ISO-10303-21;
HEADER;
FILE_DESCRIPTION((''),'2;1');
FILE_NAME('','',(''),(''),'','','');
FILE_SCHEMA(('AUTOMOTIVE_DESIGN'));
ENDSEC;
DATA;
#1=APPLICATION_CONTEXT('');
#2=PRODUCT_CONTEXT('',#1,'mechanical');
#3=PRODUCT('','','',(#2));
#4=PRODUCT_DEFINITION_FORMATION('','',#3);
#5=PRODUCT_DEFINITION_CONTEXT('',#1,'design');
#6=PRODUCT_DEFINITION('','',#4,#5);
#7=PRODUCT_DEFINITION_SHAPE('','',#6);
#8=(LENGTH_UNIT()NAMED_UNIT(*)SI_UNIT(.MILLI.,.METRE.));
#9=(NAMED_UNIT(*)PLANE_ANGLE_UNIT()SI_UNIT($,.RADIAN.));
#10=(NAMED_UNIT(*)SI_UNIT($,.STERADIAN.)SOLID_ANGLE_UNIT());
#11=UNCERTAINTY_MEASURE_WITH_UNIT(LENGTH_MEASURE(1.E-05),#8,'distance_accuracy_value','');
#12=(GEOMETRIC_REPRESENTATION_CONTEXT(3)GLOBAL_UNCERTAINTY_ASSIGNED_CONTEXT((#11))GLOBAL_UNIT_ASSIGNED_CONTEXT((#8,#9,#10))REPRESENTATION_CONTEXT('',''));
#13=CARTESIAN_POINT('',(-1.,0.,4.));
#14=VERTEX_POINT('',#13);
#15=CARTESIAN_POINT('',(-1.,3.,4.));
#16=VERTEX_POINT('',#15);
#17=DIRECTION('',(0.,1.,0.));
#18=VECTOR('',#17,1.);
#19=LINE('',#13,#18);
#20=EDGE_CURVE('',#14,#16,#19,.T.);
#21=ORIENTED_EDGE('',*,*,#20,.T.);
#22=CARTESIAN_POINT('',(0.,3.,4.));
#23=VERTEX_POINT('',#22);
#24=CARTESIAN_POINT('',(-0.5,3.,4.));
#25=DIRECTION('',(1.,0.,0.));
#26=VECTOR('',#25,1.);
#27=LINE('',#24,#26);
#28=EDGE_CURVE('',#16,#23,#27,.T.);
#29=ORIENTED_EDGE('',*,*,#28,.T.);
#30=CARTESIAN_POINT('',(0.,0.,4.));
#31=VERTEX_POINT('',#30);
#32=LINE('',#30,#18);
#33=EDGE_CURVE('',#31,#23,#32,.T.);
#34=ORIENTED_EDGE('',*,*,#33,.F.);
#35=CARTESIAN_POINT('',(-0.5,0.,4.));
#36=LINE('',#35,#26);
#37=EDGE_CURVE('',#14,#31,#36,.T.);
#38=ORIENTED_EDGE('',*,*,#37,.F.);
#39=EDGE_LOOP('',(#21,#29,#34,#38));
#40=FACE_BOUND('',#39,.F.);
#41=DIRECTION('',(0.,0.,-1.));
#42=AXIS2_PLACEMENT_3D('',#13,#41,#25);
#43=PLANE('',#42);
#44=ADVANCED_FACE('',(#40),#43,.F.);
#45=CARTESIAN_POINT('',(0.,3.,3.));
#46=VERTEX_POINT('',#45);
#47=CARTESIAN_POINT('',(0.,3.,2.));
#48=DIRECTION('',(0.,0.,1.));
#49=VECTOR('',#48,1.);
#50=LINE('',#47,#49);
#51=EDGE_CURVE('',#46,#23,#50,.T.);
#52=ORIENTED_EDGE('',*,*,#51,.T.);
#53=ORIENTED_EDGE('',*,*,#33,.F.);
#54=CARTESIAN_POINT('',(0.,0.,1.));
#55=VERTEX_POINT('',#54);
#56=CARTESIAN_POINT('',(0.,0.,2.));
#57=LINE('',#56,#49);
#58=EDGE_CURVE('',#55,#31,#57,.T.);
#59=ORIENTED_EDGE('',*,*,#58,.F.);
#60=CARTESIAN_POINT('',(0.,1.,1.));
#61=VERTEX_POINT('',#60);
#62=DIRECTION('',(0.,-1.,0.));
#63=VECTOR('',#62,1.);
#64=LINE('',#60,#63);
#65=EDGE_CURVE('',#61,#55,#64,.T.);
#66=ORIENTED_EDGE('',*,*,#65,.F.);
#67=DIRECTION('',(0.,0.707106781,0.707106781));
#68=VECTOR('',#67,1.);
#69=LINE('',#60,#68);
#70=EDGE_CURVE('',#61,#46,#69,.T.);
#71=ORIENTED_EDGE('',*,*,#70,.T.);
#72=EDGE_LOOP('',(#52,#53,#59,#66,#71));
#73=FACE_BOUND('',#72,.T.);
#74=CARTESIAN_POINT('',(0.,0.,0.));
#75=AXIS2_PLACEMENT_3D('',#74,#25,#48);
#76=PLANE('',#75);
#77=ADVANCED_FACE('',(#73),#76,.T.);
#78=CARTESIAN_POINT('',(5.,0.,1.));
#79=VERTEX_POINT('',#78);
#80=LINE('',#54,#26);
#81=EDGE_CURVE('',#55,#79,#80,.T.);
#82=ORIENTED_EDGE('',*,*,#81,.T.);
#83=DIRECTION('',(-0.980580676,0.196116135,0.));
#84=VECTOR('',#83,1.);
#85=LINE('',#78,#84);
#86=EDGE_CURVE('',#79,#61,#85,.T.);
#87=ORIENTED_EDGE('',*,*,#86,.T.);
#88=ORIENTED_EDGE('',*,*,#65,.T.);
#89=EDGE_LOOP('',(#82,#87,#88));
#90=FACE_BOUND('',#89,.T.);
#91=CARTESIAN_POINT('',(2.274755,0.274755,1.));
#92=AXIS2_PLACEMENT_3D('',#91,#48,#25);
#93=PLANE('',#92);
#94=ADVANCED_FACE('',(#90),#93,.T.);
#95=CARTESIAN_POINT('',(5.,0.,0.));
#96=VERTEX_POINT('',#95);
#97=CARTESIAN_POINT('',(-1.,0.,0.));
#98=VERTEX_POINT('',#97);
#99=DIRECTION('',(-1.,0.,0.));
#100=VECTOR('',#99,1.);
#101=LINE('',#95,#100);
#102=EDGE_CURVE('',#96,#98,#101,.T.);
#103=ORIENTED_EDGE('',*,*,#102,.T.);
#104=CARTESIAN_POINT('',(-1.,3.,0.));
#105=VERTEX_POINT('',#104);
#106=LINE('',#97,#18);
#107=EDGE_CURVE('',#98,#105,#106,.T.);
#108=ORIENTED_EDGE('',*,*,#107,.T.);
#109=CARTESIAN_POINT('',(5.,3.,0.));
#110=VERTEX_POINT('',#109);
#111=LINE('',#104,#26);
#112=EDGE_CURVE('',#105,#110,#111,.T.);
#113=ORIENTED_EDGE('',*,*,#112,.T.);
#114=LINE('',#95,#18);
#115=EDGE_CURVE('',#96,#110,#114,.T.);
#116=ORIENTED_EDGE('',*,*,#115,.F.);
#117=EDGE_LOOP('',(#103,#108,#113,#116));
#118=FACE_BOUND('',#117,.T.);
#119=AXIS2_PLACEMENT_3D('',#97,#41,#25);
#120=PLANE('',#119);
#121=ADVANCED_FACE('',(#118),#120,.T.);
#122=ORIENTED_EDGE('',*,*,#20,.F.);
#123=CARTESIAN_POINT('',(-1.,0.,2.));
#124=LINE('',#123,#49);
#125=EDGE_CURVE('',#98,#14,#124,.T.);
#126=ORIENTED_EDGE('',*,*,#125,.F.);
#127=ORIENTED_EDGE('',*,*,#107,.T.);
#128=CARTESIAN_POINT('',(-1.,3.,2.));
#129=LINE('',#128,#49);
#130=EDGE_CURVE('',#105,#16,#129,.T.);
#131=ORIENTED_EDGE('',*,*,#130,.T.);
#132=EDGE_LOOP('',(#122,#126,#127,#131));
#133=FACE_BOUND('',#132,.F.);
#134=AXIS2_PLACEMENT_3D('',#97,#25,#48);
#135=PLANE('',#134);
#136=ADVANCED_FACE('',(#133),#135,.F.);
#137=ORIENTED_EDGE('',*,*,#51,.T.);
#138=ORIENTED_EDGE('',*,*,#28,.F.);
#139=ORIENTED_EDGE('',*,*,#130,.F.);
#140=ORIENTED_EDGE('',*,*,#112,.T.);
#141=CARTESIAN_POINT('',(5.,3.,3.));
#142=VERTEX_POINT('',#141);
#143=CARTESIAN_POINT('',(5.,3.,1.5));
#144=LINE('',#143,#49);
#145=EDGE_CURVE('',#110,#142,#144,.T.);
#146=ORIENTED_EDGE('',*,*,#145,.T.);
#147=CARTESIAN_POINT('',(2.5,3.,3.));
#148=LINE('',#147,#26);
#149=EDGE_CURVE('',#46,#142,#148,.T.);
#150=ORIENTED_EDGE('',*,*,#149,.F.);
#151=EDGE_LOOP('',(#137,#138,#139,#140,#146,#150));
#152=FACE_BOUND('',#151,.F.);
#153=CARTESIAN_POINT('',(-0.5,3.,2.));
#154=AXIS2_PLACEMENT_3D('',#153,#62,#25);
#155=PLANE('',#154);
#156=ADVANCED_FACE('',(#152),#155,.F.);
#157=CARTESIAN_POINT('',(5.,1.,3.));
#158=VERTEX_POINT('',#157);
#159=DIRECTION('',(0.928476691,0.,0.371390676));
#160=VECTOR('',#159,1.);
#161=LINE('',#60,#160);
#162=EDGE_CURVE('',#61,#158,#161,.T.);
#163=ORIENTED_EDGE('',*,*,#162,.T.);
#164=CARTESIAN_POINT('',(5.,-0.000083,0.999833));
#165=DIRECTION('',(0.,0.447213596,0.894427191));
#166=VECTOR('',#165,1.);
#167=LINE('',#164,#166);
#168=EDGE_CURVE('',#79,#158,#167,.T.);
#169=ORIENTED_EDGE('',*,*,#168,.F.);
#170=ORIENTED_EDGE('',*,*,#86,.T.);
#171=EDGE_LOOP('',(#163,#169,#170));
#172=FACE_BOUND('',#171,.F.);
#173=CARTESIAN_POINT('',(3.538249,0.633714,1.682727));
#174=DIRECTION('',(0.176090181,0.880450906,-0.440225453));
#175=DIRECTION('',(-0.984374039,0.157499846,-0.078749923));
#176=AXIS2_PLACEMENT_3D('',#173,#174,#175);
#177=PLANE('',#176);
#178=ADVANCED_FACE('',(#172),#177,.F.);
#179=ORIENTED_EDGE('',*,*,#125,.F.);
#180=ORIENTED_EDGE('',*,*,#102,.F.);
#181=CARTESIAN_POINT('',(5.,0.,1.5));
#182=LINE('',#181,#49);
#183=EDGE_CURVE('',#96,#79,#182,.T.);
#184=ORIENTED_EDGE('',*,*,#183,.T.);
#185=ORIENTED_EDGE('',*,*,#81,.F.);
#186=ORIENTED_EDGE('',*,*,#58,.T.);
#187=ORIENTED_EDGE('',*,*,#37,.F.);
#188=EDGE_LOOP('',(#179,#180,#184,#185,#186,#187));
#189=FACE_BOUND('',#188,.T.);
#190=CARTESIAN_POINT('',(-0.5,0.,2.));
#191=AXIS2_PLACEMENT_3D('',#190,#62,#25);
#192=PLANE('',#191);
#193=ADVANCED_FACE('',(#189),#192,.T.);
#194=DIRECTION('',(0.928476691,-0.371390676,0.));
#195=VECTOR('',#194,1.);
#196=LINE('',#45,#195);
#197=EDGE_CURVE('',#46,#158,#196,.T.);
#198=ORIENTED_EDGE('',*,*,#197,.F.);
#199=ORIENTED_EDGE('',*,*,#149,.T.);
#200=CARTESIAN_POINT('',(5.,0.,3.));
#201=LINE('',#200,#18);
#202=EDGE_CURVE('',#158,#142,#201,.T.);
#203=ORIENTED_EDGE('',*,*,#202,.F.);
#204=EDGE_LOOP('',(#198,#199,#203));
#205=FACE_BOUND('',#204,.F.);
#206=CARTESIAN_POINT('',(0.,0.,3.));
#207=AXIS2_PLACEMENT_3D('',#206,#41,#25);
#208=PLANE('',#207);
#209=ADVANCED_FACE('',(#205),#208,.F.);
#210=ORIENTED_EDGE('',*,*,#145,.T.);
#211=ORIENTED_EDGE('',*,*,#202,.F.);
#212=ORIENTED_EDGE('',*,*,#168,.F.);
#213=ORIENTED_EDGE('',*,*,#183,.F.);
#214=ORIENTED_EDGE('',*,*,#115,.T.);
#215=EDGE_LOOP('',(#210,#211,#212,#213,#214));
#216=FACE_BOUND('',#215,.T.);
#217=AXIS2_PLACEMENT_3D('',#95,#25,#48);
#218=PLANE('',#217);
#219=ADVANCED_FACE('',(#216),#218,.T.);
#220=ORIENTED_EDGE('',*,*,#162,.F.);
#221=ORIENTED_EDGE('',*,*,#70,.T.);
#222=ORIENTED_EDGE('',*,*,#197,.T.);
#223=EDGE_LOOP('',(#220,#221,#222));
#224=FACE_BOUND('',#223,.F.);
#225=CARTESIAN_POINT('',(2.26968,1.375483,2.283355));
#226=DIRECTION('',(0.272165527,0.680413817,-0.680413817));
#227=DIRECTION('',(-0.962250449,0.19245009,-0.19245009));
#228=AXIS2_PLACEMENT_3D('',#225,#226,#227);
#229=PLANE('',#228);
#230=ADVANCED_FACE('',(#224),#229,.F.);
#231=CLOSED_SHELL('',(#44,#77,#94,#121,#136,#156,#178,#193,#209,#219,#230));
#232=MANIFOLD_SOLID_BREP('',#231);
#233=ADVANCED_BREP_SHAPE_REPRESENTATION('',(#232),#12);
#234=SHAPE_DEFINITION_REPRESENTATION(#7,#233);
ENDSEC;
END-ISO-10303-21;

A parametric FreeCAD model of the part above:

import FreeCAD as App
import Part
import Sketcher
Q = App.Units.Quantity


def add_polygon(sketch, points):
    """Adds a closed chain of lines whose ends are joined by coincident constraints."""
    first, n = sketch.GeometryCount, len(points)
    for a, b in zip(points, points[1:] + points[:1]):
        sketch.addGeometry(Part.LineSegment(App.Vector(*a, 0), App.Vector(*b, 0)), False)
    for i in range(n):
        sketch.addConstraint(Sketcher.Constraint("Coincident", first + i, 2, first + (i + 1) % n, 1))

doc = App.newDocument("Part")
params = doc.addObject("Spreadsheet::Sheet", "Params")
for row, (alias, value) in enumerate([
    ("sketch1_width", "5 mm"),
    ("sketch1_height", "3 mm"),
    ("pad1_length", "3 mm"),
    ("sketch2_width", "5 mm"),
    ("sketch2_height", "1 mm"),
    ("pocket1_length", "2 mm"),
    ("pocket2_length", "25 mm"),
    ("pocket3_length", "25 mm"),
    ("sketch5_width", "1 mm"),
    ("sketch5_height", "4 mm"),
    ("pad2_length", "3 mm"),
], start=1):
    params.set(f"A{row}", alias)
    params.set(f"B{row}", "=" + value)
    params.setAlias(f"B{row}", alias)

body = doc.addObject("PartDesign::Body", "Body")

sketch1 = doc.addObject("Sketcher::SketchObject", "Sketch")
body.addObject(sketch1)
sketch1.AttachmentSupport = (doc.XZ_Plane, [""])
sketch1.MapMode = "FlatFace"
add_polygon(sketch1, [(0, 3), (0, 0), (5, 0), (5, 3)])
sketch1.addConstraint([
    Sketcher.Constraint("Vertical", 0),
    Sketcher.Constraint("Horizontal", 1),
    Sketcher.Constraint("Vertical", 2),
    Sketcher.Constraint("Horizontal", 3),
    Sketcher.Constraint("Coincident", 0, 2, -1, 1),
    Sketcher.Constraint("DistanceX", 1, 1, 1, 2, Q("5 mm")),
    Sketcher.Constraint("DistanceY", 0, 2, 0, 1, Q("3 mm")),
])
sketch1.setExpression("Constraints[9]", "Params.sketch1_width")
sketch1.setExpression("Constraints[10]", "Params.sketch1_height")
pad1 = doc.addObject("PartDesign::Pad", "Pad")
body.addObject(pad1)
pad1.Profile = sketch1
pad1.setExpression("Length", "Params.pad1_length")
pad1.Reversed = True

sketch2 = doc.addObject("Sketcher::SketchObject", "Sketch001")
body.addObject(sketch2)
sketch2.AttachmentSupport = (doc.XY_Plane, [""])
sketch2.MapMode = "FlatFace"
sketch2.AttachmentOffset = App.Placement(App.Vector(0, 0, 3), App.Rotation())
add_polygon(sketch2, [(0, 1), (0, 0), (5, 0)])
sketch2.addConstraint([
    Sketcher.Constraint("Vertical", 0),
    Sketcher.Constraint("Horizontal", 1),
    Sketcher.Constraint("Coincident", 0, 2, -1, 1),
    Sketcher.Constraint("DistanceX", 1, 1, 1, 2, Q("5 mm")),
    Sketcher.Constraint("DistanceY", 0, 2, 0, 1, Q("1 mm")),
])
sketch2.setExpression("Constraints[6]", "Params.sketch2_width")
sketch2.setExpression("Constraints[7]", "Params.sketch2_height")
pocket1 = doc.addObject("PartDesign::Pocket", "Pocket")
body.addObject(pocket1)
pocket1.Profile = sketch2
pocket1.setExpression("Length", "Params.pocket1_length")

sketch3 = doc.addObject("Sketcher::SketchObject", "Sketch002")
body.addObject(sketch3)
sketch3.Placement = App.Placement(App.Vector(0.077519, 0.387597, -0.193798), App.Rotation(App.Vector(-0.984374039, 0.157499846, -0.078749923), App.Vector(0, 0.447213595, 0.894427191), App.Vector(0.176090181, 0.880450906, -0.440225453), "ZXY"))
add_polygon(sketch3, [(-5, 0.9), (0.1, 1.3), (-5, 3.1), (-6.2, 3.1), (-6.2, 0.9)])
sketch3.addConstraint([
    Sketcher.Constraint("Horizontal", 2),
    Sketcher.Constraint("Horizontal", 4),
    Sketcher.Constraint("Vertical", 1, 2, 4, 2),
    Sketcher.Constraint("Distance", 0, Q("5.09902 mm")),
    Sketcher.Constraint("DistanceX", 2, 2, 2, 1, Q("1.191737 mm")),
    Sketcher.Constraint("DistanceX", 4, 1, 4, 2, Q("1.221295 mm")),
    Sketcher.Constraint("DistanceX", -1, 1, 0, 2, Q("0.07875 mm")),
    Sketcher.Constraint("DistanceY", -1, 1, 0, 2, Q("1.341641 mm")),
    Sketcher.Constraint("DistanceX", 1, 2, -1, 1, Q("5.00062 mm")),
    Sketcher.Constraint("Distance", 1, Q("5.385165 mm")),
])
pocket2 = doc.addObject("PartDesign::Pocket", "Pocket001")
body.addObject(pocket2)
pocket2.Profile = sketch3
pocket2.setExpression("Length", "Params.pocket2_length")

sketch4 = doc.addObject("Sketcher::SketchObject", "Sketch003")
body.addObject(sketch4)
sketch4.Placement = App.Placement(App.Vector(0, 0, 0), App.Rotation(App.Vector(-0.962250449, 0.19245009, -0.19245009), App.Vector(0, 0.707106781, 0.707106781), App.Vector(0.272165527, 0.680413817, -0.680413817), "ZXY"))
add_polygon(sketch4, [(0, 1.4), (0, 4.2), (-5.2, 2.8), (-5.5, 1.8)])
sketch4.addConstraint([
    Sketcher.Constraint("Vertical", 0),
    Sketcher.Constraint("PointOnObject", 0, 2, -2),
    Sketcher.Constraint("Distance", 2, Q("1.098211 mm")),
    Sketcher.Constraint("DistanceY", 0, 1, 0, 2, Q("2.828427 mm")),
    Sketcher.Constraint("DistanceY", -1, 1, 0, 2, Q("4.242641 mm")),
    Sketcher.Constraint("DistanceY", -1, 1, 2, 2, Q("1.768762 mm")),
    Sketcher.Constraint("Distance", 1, Q("5.385165 mm")),
    Sketcher.Constraint("Distance", 3, Q("5.496005 mm")),
])
pocket3 = doc.addObject("PartDesign::Pocket", "Pocket002")
body.addObject(pocket3)
pocket3.Profile = sketch4
pocket3.setExpression("Length", "Params.pocket3_length")

sketch5 = doc.addObject("Sketcher::SketchObject", "Sketch004")
body.addObject(sketch5)
sketch5.AttachmentSupport = (doc.XZ_Plane, [""])
sketch5.MapMode = "FlatFace"
add_polygon(sketch5, [(-1, 4), (-1, 0), (0, 0), (0, 4)])
sketch5.addConstraint([
    Sketcher.Constraint("Vertical", 0),
    Sketcher.Constraint("Horizontal", 1),
    Sketcher.Constraint("Vertical", 2),
    Sketcher.Constraint("Horizontal", 3),
    Sketcher.Constraint("Coincident", 1, 2, -1, 1),
    Sketcher.Constraint("DistanceX", 1, 1, 1, 2, Q("1 mm")),
    Sketcher.Constraint("DistanceY", 0, 2, 0, 1, Q("4 mm")),
])
sketch5.setExpression("Constraints[9]", "Params.sketch5_width")
sketch5.setExpression("Constraints[10]", "Params.sketch5_height")
pad2 = doc.addObject("PartDesign::Pad", "Pad001")
body.addObject(pad2)
pad2.Profile = sketch5
pad2.setExpression("Length", "Params.pad2_length")
pad2.Reversed = True

doc.recompute()
